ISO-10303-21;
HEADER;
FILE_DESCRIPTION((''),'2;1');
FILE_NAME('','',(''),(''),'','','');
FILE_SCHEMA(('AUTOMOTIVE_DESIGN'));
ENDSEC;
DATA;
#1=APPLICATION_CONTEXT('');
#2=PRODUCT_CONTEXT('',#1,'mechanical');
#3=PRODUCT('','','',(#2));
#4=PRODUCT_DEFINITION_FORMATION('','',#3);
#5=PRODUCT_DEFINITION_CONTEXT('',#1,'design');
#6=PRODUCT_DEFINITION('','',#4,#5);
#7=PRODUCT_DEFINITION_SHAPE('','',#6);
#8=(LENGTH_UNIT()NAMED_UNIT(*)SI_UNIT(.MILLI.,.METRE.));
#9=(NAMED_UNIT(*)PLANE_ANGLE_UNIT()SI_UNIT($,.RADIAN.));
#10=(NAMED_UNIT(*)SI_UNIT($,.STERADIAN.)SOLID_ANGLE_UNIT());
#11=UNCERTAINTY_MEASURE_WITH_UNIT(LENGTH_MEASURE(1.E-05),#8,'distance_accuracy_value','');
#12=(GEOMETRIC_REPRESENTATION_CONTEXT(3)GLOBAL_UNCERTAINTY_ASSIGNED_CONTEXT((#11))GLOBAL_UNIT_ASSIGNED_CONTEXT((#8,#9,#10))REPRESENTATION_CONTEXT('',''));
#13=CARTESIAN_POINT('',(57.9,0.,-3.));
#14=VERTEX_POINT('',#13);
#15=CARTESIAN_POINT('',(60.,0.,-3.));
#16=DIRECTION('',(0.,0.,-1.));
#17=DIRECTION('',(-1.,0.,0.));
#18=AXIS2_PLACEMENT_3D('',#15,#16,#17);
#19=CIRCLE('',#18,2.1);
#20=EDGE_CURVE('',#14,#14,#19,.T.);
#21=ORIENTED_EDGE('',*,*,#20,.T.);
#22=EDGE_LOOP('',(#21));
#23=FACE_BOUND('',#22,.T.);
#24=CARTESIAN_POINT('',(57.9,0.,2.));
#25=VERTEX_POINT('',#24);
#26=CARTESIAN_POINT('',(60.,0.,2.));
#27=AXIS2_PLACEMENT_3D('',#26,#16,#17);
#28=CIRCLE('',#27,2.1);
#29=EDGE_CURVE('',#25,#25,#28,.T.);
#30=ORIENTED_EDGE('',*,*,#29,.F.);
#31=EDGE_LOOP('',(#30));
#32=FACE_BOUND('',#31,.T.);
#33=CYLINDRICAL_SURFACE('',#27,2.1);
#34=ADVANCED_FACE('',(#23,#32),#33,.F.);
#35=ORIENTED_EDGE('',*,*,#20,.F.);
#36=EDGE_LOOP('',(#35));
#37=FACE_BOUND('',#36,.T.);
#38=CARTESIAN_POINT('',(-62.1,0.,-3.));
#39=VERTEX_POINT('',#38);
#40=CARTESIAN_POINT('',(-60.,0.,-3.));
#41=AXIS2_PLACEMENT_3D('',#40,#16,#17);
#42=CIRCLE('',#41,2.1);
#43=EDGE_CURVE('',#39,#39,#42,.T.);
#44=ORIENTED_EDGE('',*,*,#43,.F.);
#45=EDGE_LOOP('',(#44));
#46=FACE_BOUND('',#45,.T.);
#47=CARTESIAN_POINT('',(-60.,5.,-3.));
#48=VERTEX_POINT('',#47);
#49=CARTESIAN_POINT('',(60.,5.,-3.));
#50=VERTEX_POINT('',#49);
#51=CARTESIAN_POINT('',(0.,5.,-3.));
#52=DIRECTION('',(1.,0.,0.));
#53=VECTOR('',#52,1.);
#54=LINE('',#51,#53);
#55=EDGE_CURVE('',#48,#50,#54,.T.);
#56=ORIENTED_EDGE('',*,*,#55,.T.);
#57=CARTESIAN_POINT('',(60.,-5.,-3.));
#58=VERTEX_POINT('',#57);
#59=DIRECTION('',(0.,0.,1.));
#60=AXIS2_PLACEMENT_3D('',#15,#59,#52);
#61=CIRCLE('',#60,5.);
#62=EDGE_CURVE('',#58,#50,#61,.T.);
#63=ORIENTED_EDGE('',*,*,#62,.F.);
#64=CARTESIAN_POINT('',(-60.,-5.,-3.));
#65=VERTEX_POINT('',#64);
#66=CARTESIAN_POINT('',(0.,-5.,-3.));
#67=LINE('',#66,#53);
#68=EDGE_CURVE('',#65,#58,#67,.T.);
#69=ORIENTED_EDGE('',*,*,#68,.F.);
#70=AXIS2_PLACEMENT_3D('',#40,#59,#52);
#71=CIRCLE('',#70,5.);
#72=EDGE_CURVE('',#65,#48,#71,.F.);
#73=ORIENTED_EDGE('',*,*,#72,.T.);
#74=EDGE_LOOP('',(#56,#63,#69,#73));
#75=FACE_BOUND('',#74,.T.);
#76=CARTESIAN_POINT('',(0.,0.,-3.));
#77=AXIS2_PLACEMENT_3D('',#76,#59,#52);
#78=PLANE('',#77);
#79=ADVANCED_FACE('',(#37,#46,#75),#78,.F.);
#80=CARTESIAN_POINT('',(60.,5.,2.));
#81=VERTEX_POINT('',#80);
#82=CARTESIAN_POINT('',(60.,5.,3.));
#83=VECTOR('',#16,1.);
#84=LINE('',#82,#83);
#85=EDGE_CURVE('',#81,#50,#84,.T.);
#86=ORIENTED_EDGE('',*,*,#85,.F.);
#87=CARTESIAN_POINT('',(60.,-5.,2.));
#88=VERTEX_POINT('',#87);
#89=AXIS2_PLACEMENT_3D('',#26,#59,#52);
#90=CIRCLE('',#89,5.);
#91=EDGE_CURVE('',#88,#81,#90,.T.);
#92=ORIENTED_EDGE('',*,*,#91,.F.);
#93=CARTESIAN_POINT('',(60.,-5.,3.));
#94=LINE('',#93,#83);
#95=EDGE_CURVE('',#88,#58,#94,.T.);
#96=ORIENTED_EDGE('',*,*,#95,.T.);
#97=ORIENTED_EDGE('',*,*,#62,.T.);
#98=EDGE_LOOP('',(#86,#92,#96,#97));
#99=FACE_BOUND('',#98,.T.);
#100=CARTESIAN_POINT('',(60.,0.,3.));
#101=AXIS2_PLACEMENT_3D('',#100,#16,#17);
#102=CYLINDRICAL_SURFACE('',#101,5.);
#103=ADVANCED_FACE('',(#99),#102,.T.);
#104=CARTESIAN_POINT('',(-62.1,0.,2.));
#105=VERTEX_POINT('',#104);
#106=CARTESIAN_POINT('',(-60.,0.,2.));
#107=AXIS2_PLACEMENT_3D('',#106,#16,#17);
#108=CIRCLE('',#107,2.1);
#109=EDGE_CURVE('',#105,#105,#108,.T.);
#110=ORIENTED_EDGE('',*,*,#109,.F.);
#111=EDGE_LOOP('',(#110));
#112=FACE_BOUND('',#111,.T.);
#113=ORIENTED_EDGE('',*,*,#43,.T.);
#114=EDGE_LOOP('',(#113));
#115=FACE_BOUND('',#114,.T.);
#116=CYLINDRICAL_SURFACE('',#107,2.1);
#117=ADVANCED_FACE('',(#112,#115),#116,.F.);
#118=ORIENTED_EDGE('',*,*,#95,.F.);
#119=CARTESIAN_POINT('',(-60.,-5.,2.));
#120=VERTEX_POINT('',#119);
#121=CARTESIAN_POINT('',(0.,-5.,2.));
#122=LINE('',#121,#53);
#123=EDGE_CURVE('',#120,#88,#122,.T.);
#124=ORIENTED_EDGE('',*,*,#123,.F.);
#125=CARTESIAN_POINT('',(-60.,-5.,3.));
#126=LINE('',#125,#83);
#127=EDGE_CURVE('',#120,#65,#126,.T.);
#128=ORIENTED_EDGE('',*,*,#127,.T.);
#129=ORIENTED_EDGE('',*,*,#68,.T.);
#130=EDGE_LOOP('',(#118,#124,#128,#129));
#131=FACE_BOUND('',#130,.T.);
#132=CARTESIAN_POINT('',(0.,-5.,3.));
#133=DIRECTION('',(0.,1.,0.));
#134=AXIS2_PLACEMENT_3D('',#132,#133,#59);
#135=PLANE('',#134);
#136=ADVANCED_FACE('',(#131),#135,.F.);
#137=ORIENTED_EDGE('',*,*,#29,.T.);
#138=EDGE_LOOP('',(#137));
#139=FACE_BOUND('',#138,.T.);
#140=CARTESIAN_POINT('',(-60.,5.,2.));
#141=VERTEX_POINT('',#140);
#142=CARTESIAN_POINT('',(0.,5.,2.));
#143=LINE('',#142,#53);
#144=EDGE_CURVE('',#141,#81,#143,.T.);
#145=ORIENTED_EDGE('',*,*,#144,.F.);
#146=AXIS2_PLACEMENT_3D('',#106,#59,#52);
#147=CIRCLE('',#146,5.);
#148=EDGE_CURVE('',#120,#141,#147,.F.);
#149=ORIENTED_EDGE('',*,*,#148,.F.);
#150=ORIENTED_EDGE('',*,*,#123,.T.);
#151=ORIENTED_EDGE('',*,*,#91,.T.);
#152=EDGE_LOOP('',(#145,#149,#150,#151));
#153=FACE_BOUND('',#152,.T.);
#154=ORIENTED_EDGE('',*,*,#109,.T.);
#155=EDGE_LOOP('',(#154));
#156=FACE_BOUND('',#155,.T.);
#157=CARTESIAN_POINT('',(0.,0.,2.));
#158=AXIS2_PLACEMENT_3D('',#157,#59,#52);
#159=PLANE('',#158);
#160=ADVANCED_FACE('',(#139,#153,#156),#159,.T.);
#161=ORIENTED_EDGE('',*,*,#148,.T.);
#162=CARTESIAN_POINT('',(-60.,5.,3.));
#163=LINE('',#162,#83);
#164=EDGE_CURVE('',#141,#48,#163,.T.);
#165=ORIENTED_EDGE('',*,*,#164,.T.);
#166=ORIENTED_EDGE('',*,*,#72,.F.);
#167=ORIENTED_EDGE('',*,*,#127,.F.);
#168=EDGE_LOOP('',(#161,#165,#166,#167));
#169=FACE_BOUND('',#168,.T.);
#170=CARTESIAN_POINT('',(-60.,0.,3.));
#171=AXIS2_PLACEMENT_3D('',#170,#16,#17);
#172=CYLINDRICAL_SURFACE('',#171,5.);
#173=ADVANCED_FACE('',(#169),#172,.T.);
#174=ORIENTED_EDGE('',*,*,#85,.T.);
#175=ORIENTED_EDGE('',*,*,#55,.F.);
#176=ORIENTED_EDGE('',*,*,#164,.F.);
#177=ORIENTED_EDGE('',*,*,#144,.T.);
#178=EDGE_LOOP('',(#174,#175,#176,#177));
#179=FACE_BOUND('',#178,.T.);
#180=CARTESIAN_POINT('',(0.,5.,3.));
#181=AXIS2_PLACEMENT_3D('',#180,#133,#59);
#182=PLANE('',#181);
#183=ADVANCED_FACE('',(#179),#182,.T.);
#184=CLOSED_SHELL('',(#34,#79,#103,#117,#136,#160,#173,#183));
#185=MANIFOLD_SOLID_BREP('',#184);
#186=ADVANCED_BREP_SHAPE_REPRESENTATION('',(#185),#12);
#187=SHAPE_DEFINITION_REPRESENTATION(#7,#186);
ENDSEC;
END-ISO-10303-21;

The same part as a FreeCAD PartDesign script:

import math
import FreeCAD as App
import Part
import Sketcher


def add_polygon(sketch, points):
    """Adds a closed chain of lines whose ends are joined by coincident constraints."""
    first, n = sketch.GeometryCount, len(points)
    for a, b in zip(points, points[1:] + points[:1]):
        sketch.addGeometry(Part.LineSegment(App.Vector(*a, 0), App.Vector(*b, 0)), False)
    for i in range(n):
        sketch.addConstraint(Sketcher.Constraint("Coincident", first + i, 2, first + (i + 1) % n, 1))

doc = App.newDocument("Part")
params = doc.addObject("Spreadsheet::Sheet", "Params")
for row, (alias, value) in enumerate([
    ("sketch1_radius", "5 mm"),
    ("sketch1_width", "120 mm"),
    ("pad1_length", "6 mm"),
    ("pocket1_length", "1 mm"),
    ("sketch3_diameter", "4.2 mm"),
], start=1):
    params.set(f"A{row}", alias)
    params.set(f"B{row}", "=" + value)
    params.setAlias(f"B{row}", alias)

body = doc.addObject("PartDesign::Body", "Body")

# Sketch on XY plane
sketch1 = body.newObject("Sketcher::SketchObject", "Sketch")
sketch1.AttachmentSupport = (doc.getObject("XY_Plane"), [""])
sketch1.MapMode = "FlatFace"
sketch1.addGeometry([
    Part.LineSegment(App.Vector(60, 5, 0), App.Vector(-60, 5, 0)),
    Part.ArcOfCircle(Part.Circle(App.Vector(-60, 0, 0), App.Vector(0, 0, 1), 5), math.radians(90), math.radians(270)),
    Part.LineSegment(App.Vector(-60, -5, 0), App.Vector(60, -5, 0)),
    Part.ArcOfCircle(Part.Circle(App.Vector(60, 0, 0), App.Vector(0, 0, 1), 5), math.radians(-90), math.radians(90)),
], False)
sketch1.addConstraint([
    Sketcher.Constraint("Tangent", 0, 2, 1, 1),
    Sketcher.Constraint("Tangent", 1, 2, 2, 1),
    Sketcher.Constraint("Tangent", 2, 2, 3, 1),
    Sketcher.Constraint("Tangent", 3, 2, 0, 1),
    Sketcher.Constraint("Horizontal", 0),
    Sketcher.Constraint("Horizontal", 2),
    Sketcher.Constraint("Symmetric", 1, 3, 3, 3, -1, 1),
    Sketcher.Constraint("Radius", 1, 5.0),
    Sketcher.Constraint("DistanceX", 0, 2, 0, 1, 120.0),
])
sketch1.setExpression("Constraints[7]", "Params.sketch1_radius")
sketch1.setExpression("Constraints[8]", "Params.sketch1_width")
pad1 = body.newObject("PartDesign::Pad", "Pad")
pad1.Profile = sketch1
pad1.setExpression("Length", "Params.pad1_length")
pad1.Midplane = True

# Sketch on XY plane
sketch2 = body.newObject("Sketcher::SketchObject", "Sketch001")
sketch2.AttachmentSupport = (doc.getObject("XY_Plane"), [""])
sketch2.MapMode = "FlatFace"
sketch2.AttachmentOffset = App.Placement(App.Vector(0, 0, 3), App.Rotation())
add_polygon(sketch2, [(-79, 28), (-79, -28), (77, -28), (77, 28)])  # lines 0-3
sketch2.addConstraint([
    Sketcher.Constraint("Vertical", 0),
    Sketcher.Constraint("Horizontal", 1),
    Sketcher.Constraint("Vertical", 2),
    Sketcher.Constraint("Horizontal", 3),
    Sketcher.Constraint("DistanceX", 1, 1, 1, 2, 155.927689),
    Sketcher.Constraint("DistanceY", 0, 2, 0, 1, 55.200678),
    Sketcher.Constraint("DistanceX", 0, 2, -1, 1, 78.817463),
    Sketcher.Constraint("DistanceY", 0, 2, -1, 1, 27.529204),
])
pocket1 = body.newObject("PartDesign::Pocket", "Pocket")
pocket1.Profile = sketch2
pocket1.setExpression("Length", "Params.pocket1_length")

# Sketch on XY plane
sketch3 = body.newObject("Sketcher::SketchObject", "Sketch002")
sketch3.AttachmentSupport = (doc.getObject("XY_Plane"), [""])
sketch3.MapMode = "FlatFace"
sketch3.AttachmentOffset = App.Placement(App.Vector(0, 0, -3), App.Rotation())
sketch3.addGeometry([
    Part.Circle(App.Vector(60, 0, 0), App.Vector(0, 0, 1), 2.1),
    Part.Circle(App.Vector(-60, 0, 0), App.Vector(0, 0, 1), 2.1),
], False)
sketch3.addConstraint([
    Sketcher.Constraint("Equal", 0, 1),
    Sketcher.Constraint("Symmetric", 0, 3, 1, 3, -1, 1),
    Sketcher.Constraint("PointOnObject", 0, 3, -1),
    Sketcher.Constraint("Diameter", 0, 4.2),
    Sketcher.Constraint("DistanceX", -1, 1, 0, 3, 60.0),
])
sketch3.setExpression("Constraints[3]", "Params.sketch3_diameter")
pocket2 = body.newObject("PartDesign::Pocket", "Pocket001")
pocket2.Profile = sketch3
pocket2.Type = "ThroughAll"
pocket2.Reversed = True

doc.recompute()
